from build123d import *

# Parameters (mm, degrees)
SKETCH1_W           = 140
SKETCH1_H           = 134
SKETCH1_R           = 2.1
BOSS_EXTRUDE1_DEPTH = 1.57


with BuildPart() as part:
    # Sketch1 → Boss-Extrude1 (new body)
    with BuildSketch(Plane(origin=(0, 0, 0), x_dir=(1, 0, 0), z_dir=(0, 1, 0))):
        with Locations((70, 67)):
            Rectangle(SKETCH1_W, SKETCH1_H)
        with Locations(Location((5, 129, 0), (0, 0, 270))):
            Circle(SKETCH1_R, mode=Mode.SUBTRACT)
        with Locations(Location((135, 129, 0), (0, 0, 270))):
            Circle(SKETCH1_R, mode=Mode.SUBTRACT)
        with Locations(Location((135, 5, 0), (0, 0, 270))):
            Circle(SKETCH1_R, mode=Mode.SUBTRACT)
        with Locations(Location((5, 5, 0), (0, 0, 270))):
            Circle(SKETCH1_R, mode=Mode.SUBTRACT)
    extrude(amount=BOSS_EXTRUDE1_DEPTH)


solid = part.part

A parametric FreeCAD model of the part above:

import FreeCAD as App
import Part
import Sketcher

doc = App.newDocument("Part")
params = doc.addObject("Spreadsheet::Sheet", "Params")
for row, (alias, value) in enumerate([
    ("sketch1_diameter", "4.2 mm"),
    ("sketch1_width", "140 mm"),
    ("sketch1_height", "134 mm"),
    ("pad1_length", "1.57 mm"),
], start=1):
    params.set(f"A{row}", alias)
    params.set(f"B{row}", "=" + value)
    params.setAlias(f"B{row}", alias)

body = doc.addObject("PartDesign::Body", "Body")

sketch1 = doc.addObject("Sketcher::SketchObject", "Sketch")
body.addObject(sketch1)
sketch1.AttachmentSupport = (doc.XZ_Plane, [""])
sketch1.MapMode = "FlatFace"
sketch1.addGeometry([
    Part.LineSegment(App.Vector(0, -134, 0), App.Vector(0, 0, 0)),
    Part.LineSegment(App.Vector(0, 0, 0), App.Vector(140, 0, 0)),
    Part.LineSegment(App.Vector(140, 0, 0), App.Vector(140, -134, 0)),
    Part.LineSegment(App.Vector(140, -134, 0), App.Vector(0, -134, 0)),
    Part.Circle(App.Vector(5, -5, 0), App.Vector(0, 0, 1), 2.1),
    Part.Circle(App.Vector(135, -5, 0), App.Vector(0, 0, 1), 2.1),
    Part.Circle(App.Vector(5, -129, 0), App.Vector(0, 0, 1), 2.1),
    Part.Circle(App.Vector(135, -129, 0), App.Vector(0, 0, 1), 2.1),
], False)
sketch1.addConstraint([
    Sketcher.Constraint("Coincident", 0, 2, 1, 1),
    Sketcher.Constraint("Coincident", 1, 2, 2, 1),
    Sketcher.Constraint("Coincident", 2, 2, 3, 1),
    Sketcher.Constraint("Coincident", 3, 2, 0, 1),
    Sketcher.Constraint("Vertical", 0),
    Sketcher.Constraint("Horizontal", 1),
    Sketcher.Constraint("Vertical", 2),
    Sketcher.Constraint("Horizontal", 3),
    Sketcher.Constraint("Coincident", 0, 2, -1, 1),
    Sketcher.Constraint("Equal", 4, 5),
    Sketcher.Constraint("Equal", 5, 6),
    Sketcher.Constraint("Equal", 6, 7),
    Sketcher.Constraint("Horizontal", 4, 3, 5, 3),
    Sketcher.Constraint("Horizontal", 6, 3, 7, 3),
    Sketcher.Constraint("Vertical", 4, 3, 6, 3),
    Sketcher.Constraint("Vertical", 5, 3, 7, 3),
    Sketcher.Constraint("Diameter", 4, 4.2),
    Sketcher.Constraint("DistanceX", 1, 1, 1, 2, 140.0),
    Sketcher.Constraint("DistanceY", 0, 1, 0, 2, 134.0),
    Sketcher.Constraint("DistanceX", -1, 1, 4, 3, 5.0),
    Sketcher.Constraint("DistanceY", 4, 3, -1, 1, 5.0),
    Sketcher.Constraint("DistanceX", -1, 1, 5, 3, 135.0),
    Sketcher.Constraint("DistanceY", 6, 3, -1, 1, 129.0),
])
sketch1.setExpression("Constraints[16]", "Params.sketch1_diameter")
sketch1.setExpression("Constraints[17]", "Params.sketch1_width")
sketch1.setExpression("Constraints[18]", "Params.sketch1_height")
pad1 = doc.addObject("PartDesign::Pad", "Pad")
body.addObject(pad1)
pad1.Profile = sketch1
pad1.setExpression("Length", "Params.pad1_length")
pad1.Reversed = True

doc.recompute()
